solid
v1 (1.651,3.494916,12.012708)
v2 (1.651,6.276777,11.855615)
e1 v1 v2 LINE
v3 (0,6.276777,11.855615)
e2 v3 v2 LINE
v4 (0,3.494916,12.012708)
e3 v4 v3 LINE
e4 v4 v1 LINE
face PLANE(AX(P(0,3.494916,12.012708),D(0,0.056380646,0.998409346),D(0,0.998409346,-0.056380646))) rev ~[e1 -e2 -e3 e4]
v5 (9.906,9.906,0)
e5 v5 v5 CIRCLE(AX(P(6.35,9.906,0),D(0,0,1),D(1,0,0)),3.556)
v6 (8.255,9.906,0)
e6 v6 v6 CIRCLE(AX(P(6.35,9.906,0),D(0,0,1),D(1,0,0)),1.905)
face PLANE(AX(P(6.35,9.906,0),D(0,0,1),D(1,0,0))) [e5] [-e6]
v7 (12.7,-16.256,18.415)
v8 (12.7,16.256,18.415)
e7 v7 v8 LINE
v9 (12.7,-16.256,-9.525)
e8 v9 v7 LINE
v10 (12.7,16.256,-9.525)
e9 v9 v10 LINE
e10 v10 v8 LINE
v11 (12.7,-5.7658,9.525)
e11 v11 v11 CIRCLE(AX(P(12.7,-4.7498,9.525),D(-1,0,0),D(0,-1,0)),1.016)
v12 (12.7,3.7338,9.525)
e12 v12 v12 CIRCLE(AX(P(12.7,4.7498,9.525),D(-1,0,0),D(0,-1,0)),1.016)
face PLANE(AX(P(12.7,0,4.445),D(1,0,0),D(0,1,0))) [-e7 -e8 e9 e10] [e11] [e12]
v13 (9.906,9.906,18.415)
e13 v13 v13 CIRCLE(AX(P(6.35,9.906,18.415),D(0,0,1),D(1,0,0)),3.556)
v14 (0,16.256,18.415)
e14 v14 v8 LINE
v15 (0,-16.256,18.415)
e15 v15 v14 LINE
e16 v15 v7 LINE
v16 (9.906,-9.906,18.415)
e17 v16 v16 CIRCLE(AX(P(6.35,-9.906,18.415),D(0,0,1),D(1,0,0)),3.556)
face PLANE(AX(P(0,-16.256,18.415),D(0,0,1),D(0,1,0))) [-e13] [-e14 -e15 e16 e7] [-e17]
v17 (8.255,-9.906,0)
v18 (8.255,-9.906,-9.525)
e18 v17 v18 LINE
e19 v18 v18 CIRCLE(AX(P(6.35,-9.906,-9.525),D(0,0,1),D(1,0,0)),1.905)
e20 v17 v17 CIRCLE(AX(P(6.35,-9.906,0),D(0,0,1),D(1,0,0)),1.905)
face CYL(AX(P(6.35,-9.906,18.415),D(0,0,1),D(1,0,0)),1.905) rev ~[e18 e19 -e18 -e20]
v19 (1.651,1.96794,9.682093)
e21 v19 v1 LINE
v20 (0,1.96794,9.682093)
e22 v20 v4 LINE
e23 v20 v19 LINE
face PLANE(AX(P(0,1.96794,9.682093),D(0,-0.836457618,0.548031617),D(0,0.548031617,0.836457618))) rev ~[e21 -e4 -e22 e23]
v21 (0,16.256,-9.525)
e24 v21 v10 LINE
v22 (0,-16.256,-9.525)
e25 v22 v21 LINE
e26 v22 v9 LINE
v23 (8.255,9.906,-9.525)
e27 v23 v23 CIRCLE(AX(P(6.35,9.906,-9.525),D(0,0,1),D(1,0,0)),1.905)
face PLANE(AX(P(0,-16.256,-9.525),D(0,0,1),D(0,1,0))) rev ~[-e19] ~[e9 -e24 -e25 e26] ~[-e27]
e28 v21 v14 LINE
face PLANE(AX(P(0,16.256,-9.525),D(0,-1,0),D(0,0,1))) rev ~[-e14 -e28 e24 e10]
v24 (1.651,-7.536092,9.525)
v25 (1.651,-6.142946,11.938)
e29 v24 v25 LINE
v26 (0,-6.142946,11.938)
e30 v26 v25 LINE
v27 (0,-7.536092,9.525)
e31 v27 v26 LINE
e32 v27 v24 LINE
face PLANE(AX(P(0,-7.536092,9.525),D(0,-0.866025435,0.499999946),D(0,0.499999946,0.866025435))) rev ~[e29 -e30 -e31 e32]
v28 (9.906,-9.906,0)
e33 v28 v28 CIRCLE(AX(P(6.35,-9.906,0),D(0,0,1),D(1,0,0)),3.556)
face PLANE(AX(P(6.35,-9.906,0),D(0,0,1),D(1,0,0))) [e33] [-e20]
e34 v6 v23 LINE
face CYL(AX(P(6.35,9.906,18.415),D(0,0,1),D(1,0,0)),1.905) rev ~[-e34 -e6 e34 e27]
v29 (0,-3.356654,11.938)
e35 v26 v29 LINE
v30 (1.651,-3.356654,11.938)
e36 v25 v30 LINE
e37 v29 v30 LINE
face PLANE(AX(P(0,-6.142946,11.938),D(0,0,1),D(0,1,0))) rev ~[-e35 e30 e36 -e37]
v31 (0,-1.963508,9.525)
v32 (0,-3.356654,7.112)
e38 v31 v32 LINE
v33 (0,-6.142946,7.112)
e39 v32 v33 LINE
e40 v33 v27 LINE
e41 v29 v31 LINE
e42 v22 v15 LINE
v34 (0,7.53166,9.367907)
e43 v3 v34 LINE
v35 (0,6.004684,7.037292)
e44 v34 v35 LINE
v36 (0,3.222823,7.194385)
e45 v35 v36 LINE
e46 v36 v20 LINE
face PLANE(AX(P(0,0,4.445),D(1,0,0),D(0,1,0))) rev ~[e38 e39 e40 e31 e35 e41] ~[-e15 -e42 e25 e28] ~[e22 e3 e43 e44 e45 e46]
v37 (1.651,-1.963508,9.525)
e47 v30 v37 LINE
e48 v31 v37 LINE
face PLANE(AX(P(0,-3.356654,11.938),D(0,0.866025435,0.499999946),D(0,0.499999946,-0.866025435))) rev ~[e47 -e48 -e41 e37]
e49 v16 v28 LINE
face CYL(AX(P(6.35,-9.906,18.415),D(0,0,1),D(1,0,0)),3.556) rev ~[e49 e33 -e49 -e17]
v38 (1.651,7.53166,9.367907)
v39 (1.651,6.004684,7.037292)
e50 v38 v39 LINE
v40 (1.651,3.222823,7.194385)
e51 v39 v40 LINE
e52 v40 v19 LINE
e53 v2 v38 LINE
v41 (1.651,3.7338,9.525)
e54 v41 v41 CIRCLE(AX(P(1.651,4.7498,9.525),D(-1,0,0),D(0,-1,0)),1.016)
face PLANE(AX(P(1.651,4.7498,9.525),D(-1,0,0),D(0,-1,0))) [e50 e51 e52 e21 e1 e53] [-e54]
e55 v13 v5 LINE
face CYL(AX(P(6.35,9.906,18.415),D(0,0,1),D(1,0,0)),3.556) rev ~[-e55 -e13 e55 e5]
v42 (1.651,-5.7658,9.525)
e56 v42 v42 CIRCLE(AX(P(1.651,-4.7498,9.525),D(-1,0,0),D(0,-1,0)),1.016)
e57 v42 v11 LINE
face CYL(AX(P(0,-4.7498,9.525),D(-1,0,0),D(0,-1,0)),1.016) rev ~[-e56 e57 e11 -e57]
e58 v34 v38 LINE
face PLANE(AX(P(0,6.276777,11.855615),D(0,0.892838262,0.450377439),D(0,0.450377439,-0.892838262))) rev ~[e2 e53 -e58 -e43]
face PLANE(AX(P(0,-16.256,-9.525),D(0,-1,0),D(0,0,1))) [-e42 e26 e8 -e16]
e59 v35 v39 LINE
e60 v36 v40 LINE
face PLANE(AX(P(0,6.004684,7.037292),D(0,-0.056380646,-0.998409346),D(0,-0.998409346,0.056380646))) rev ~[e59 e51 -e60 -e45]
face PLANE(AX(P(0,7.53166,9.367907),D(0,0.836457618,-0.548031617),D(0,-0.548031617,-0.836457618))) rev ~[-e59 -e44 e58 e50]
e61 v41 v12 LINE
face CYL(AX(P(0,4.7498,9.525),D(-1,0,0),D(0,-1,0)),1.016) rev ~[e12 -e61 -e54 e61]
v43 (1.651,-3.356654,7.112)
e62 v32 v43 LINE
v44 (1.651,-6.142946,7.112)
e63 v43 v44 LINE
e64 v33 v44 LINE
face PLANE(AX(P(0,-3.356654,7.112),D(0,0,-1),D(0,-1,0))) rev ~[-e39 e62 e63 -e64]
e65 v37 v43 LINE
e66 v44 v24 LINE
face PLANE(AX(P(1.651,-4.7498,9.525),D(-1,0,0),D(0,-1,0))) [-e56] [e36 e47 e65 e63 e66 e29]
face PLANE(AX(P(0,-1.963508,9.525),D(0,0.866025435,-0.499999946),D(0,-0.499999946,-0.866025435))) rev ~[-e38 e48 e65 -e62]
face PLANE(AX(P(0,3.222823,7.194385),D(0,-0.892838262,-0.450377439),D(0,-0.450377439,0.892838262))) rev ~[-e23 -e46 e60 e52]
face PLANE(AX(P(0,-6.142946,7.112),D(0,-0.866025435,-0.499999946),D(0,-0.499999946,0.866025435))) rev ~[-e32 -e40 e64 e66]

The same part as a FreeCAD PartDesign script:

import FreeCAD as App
import Part
import Sketcher
Q = App.Units.Quantity


def add_polygon(sketch, points):
    """Adds a closed chain of lines whose ends are joined by coincident constraints."""
    first, n = sketch.GeometryCount, len(points)
    for a, b in zip(points, points[1:] + points[:1]):
        sketch.addGeometry(Part.LineSegment(App.Vector(*a, 0), App.Vector(*b, 0)), False)
    for i in range(n):
        sketch.addConstraint(Sketcher.Constraint("Coincident", first + i, 2, first + (i + 1) % n, 1))

doc = App.newDocument("Part")
body = doc.addObject("PartDesign::Body", "Body")

# Sketch on YZ plane
sketch1 = body.newObject("Sketcher::SketchObject", "Sketch")
sketch1.AttachmentSupport = (doc.getObject("YZ_Plane"), [""])
sketch1.MapMode = "FlatFace"
add_polygon(sketch1, [(-16.256, 18.415), (-16.256, -9.525), (16.256, -9.525), (16.256, 18.415)])  # lines 0-3
sketch1.addConstraint(Sketcher.Constraint("Vertical", 0))
sketch1.addConstraint(Sketcher.Constraint("Horizontal", 1))
sketch1.addConstraint(Sketcher.Constraint("Vertical", 2))
sketch1.addConstraint(Sketcher.Constraint("Horizontal", 3))
sketch1.addConstraint(Sketcher.Constraint("DistanceY", 0, 2, 0, 1, Q("1.1 in")))
sketch1.addConstraint(Sketcher.Constraint("DistanceX", 1, 1, 1, 2, Q("1.28 in")))
sketch1.addConstraint(Sketcher.Constraint("DistanceX", 0, 2, -1, 1, Q("0.64 in")))
sketch1.addConstraint(Sketcher.Constraint("DistanceY", 0, 2, -1, 1, Q("0.375 in")))
pad1 = body.newObject("PartDesign::Pad", "Pad")
pad1.Profile = sketch1
pad1.Length = Q("0.5 in")

# Sketch on YZ plane
sketch2 = body.newObject("Sketcher::SketchObject", "Sketch001")
sketch2.AttachmentSupport = (doc.getObject("YZ_Plane"), [""])
sketch2.MapMode = "FlatFace"
sketch2.addGeometry(Part.Circle(App.Vector(-4.7498, 9.525, 0), App.Vector(0, 0, 1), 1.016), False)
sketch2.addGeometry(Part.Circle(App.Vector(4.7498, 9.525, 0), App.Vector(0, 0, 1), 1.016), False)
sketch2.addConstraint(Sketcher.Constraint("Equal", 0, 1))
sketch2.addConstraint(Sketcher.Constraint("Symmetric", 0, 3, 1, 3, -2))
sketch2.addConstraint(Sketcher.Constraint("Diameter", 0, Q("0.08 in")))
sketch2.addConstraint(Sketcher.Constraint("DistanceX", 0, 3, -1, 1, Q("0.187 in")))
sketch2.addConstraint(Sketcher.Constraint("DistanceY", -1, 1, 0, 3, Q("0.375 in")))
pocket1 = body.newObject("PartDesign::Pocket", "Pocket")
pocket1.Profile = sketch2
pocket1.Type = "ThroughAll"
pocket1.Reversed = True

# Sketch on YZ plane
sketch3 = body.newObject("Sketcher::SketchObject", "Sketch002")
sketch3.AttachmentSupport = (doc.getObject("YZ_Plane"), [""])
sketch3.MapMode = "FlatFace"
add_polygon(sketch3, [(1.96794, 9.682093), (3.494916, 12.012708), (6.276777, 11.855615), (7.53166, 9.367907), (6.004684, 7.037292), (3.222823, 7.194385)])  # lines 0-5
add_polygon(sketch3, [(-6.142946, 11.938), (-3.356654, 11.938), (-1.963508, 9.525), (-3.356654, 7.112), (-6.142946, 7.112), (-7.536092, 9.525)])  # lines 6-11
sketch3.addConstraint(Sketcher.Constraint("Horizontal", 6))
sketch3.addConstraint(Sketcher.Constraint("Horizontal", 9))
sketch3.addConstraint(Sketcher.Constraint("DistanceY", -1, 1, 6, 2, Q("0.47 in")))
sketch3.addConstraint(Sketcher.Constraint("DistanceY", -1, 1, 8, 2, Q("0.28 in")))
sketch3.addConstraint(Sketcher.Constraint("DistanceY", -1, 1, 7, 2, Q("0.375 in")))
sketch3.addConstraint(Sketcher.Constraint("DistanceY", -1, 1, 10, 2, Q("0.375 in")))
sketch3.addConstraint(Sketcher.Constraint("DistanceY", 2, 2, 0, 2, Q("2.644801 mm")))
sketch3.addConstraint(Sketcher.Constraint("DistanceY", 3, 2, 5, 2, Q("2.644801 mm")))
sketch3.addConstraint(Sketcher.Constraint("Distance", 0, Q("2.786292 mm")))
sketch3.addConstraint(Sketcher.Constraint("Distance", 2, Q("2.786292 mm")))
sketch3.addConstraint(Sketcher.Constraint("Distance", 3, Q("2.786292 mm")))
sketch3.addConstraint(Sketcher.Constraint("Distance", 5, Q("2.786292 mm")))
sketch3.addConstraint(Sketcher.Constraint("DistanceX", 6, 1, 6, 2, Q("2.786292 mm")))
sketch3.addConstraint(Sketcher.Constraint("DistanceX", 9, 2, 9, 1, Q("2.786292 mm")))
sketch3.addConstraint(Sketcher.Constraint("DistanceX", -1, 1, 2, 2, Q("7.53166 mm")))
sketch3.addConstraint(Sketcher.Constraint("DistanceX", -1, 1, 5, 2, Q("1.96794 mm")))
sketch3.addConstraint(Sketcher.Constraint("DistanceX", 0, 2, 1, 2, Q("2.781861 mm")))
sketch3.addConstraint(Sketcher.Constraint("DistanceX", 0, 2, 3, 2, Q("2.509768 mm")))
sketch3.addConstraint(Sketcher.Constraint("DistanceX", 4, 2, 3, 2, Q("2.781861 mm")))
sketch3.addConstraint(Sketcher.Constraint("DistanceX", 6, 2, 0, 2, Q("6.85157 mm")))
sketch3.addConstraint(Sketcher.Constraint("DistanceY", 3, 2, 6, 2, Q("4.900708 mm")))
sketch3.addConstraint(Sketcher.Constraint("DistanceX", 7, 2, 5, 2, Q("3.931448 mm")))
sketch3.addConstraint(Sketcher.Constraint("DistanceX", 8, 2, 0, 2, Q("6.85157 mm")))
sketch3.addConstraint(Sketcher.Constraint("DistanceX", 10, 2, 6, 2, Q("4.179438 mm")))
pocket2 = body.newObject("PartDesign::Pocket", "Pocket001")
pocket2.Profile = sketch3
pocket2.Length = Q("0.065 in")
pocket2.Reversed = True

# Sketch on XY plane
sketch4 = body.newObject("Sketcher::SketchObject", "Sketch003")
sketch4.AttachmentSupport = (doc.getObject("XY_Plane"), [""])
sketch4.MapMode = "FlatFace"
sketch4.AttachmentOffset = App.Placement(App.Vector(0, 0, 0.725 * 25.4), App.Rotation())
sketch4.addGeometry(Part.Circle(App.Vector(6.35, -9.906, 0), App.Vector(0, 0, 1), 1.905), False)
sketch4.addGeometry(Part.Circle(App.Vector(6.35, 9.906, 0), App.Vector(0, 0, 1), 1.905), False)
sketch4.addConstraint(Sketcher.Constraint("Equal", 0, 1))
sketch4.addConstraint(Sketcher.Constraint("Symmetric", 0, 3, 1, 3, -1))
sketch4.addConstraint(Sketcher.Constraint("Diameter", 0, Q("0.15 in")))
sketch4.addConstraint(Sketcher.Constraint("DistanceX", -1, 1, 0, 3, Q("0.25 in")))
sketch4.addConstraint(Sketcher.Constraint("DistanceY", 0, 3, -1, 1, Q("0.39 in")))
pocket3 = body.newObject("PartDesign::Pocket", "Pocket002")
pocket3.Profile = sketch4
pocket3.Type = "ThroughAll"

# Sketch on XY plane
sketch5 = body.newObject("Sketcher::SketchObject", "Sketch004")
sketch5.AttachmentSupport = (doc.getObject("XY_Plane"), [""])
sketch5.MapMode = "FlatFace"
sketch5.AttachmentOffset = App.Placement(App.Vector(0, 0, 0.725 * 25.4), App.Rotation())
sketch5.addGeometry(Part.Circle(App.Vector(6.35, 9.906, 0), App.Vector(0, 0, 1), 3.556), False)
sketch5.addGeometry(Part.Circle(App.Vector(6.35, -9.906, 0), App.Vector(0, 0, 1), 3.556), False)
sketch5.addConstraint(Sketcher.Constraint("Equal", 0, 1))
sketch5.addConstraint(Sketcher.Constraint("Symmetric", 0, 3, 1, 3, -1))
sketch5.addConstraint(Sketcher.Constraint("Diameter", 0, Q("0.28 in")))
sketch5.addConstraint(Sketcher.Constraint("DistanceX", -1, 1, 0, 3, Q("0.25 in")))
sketch5.addConstraint(Sketcher.Constraint("DistanceY", -1, 1, 0, 3, Q("0.39 in")))
pocket4 = body.newObject("PartDesign::Pocket", "Pocket003")
pocket4.Profile = sketch5
pocket4.Length = Q("0.725 in")

doc.recompute()
